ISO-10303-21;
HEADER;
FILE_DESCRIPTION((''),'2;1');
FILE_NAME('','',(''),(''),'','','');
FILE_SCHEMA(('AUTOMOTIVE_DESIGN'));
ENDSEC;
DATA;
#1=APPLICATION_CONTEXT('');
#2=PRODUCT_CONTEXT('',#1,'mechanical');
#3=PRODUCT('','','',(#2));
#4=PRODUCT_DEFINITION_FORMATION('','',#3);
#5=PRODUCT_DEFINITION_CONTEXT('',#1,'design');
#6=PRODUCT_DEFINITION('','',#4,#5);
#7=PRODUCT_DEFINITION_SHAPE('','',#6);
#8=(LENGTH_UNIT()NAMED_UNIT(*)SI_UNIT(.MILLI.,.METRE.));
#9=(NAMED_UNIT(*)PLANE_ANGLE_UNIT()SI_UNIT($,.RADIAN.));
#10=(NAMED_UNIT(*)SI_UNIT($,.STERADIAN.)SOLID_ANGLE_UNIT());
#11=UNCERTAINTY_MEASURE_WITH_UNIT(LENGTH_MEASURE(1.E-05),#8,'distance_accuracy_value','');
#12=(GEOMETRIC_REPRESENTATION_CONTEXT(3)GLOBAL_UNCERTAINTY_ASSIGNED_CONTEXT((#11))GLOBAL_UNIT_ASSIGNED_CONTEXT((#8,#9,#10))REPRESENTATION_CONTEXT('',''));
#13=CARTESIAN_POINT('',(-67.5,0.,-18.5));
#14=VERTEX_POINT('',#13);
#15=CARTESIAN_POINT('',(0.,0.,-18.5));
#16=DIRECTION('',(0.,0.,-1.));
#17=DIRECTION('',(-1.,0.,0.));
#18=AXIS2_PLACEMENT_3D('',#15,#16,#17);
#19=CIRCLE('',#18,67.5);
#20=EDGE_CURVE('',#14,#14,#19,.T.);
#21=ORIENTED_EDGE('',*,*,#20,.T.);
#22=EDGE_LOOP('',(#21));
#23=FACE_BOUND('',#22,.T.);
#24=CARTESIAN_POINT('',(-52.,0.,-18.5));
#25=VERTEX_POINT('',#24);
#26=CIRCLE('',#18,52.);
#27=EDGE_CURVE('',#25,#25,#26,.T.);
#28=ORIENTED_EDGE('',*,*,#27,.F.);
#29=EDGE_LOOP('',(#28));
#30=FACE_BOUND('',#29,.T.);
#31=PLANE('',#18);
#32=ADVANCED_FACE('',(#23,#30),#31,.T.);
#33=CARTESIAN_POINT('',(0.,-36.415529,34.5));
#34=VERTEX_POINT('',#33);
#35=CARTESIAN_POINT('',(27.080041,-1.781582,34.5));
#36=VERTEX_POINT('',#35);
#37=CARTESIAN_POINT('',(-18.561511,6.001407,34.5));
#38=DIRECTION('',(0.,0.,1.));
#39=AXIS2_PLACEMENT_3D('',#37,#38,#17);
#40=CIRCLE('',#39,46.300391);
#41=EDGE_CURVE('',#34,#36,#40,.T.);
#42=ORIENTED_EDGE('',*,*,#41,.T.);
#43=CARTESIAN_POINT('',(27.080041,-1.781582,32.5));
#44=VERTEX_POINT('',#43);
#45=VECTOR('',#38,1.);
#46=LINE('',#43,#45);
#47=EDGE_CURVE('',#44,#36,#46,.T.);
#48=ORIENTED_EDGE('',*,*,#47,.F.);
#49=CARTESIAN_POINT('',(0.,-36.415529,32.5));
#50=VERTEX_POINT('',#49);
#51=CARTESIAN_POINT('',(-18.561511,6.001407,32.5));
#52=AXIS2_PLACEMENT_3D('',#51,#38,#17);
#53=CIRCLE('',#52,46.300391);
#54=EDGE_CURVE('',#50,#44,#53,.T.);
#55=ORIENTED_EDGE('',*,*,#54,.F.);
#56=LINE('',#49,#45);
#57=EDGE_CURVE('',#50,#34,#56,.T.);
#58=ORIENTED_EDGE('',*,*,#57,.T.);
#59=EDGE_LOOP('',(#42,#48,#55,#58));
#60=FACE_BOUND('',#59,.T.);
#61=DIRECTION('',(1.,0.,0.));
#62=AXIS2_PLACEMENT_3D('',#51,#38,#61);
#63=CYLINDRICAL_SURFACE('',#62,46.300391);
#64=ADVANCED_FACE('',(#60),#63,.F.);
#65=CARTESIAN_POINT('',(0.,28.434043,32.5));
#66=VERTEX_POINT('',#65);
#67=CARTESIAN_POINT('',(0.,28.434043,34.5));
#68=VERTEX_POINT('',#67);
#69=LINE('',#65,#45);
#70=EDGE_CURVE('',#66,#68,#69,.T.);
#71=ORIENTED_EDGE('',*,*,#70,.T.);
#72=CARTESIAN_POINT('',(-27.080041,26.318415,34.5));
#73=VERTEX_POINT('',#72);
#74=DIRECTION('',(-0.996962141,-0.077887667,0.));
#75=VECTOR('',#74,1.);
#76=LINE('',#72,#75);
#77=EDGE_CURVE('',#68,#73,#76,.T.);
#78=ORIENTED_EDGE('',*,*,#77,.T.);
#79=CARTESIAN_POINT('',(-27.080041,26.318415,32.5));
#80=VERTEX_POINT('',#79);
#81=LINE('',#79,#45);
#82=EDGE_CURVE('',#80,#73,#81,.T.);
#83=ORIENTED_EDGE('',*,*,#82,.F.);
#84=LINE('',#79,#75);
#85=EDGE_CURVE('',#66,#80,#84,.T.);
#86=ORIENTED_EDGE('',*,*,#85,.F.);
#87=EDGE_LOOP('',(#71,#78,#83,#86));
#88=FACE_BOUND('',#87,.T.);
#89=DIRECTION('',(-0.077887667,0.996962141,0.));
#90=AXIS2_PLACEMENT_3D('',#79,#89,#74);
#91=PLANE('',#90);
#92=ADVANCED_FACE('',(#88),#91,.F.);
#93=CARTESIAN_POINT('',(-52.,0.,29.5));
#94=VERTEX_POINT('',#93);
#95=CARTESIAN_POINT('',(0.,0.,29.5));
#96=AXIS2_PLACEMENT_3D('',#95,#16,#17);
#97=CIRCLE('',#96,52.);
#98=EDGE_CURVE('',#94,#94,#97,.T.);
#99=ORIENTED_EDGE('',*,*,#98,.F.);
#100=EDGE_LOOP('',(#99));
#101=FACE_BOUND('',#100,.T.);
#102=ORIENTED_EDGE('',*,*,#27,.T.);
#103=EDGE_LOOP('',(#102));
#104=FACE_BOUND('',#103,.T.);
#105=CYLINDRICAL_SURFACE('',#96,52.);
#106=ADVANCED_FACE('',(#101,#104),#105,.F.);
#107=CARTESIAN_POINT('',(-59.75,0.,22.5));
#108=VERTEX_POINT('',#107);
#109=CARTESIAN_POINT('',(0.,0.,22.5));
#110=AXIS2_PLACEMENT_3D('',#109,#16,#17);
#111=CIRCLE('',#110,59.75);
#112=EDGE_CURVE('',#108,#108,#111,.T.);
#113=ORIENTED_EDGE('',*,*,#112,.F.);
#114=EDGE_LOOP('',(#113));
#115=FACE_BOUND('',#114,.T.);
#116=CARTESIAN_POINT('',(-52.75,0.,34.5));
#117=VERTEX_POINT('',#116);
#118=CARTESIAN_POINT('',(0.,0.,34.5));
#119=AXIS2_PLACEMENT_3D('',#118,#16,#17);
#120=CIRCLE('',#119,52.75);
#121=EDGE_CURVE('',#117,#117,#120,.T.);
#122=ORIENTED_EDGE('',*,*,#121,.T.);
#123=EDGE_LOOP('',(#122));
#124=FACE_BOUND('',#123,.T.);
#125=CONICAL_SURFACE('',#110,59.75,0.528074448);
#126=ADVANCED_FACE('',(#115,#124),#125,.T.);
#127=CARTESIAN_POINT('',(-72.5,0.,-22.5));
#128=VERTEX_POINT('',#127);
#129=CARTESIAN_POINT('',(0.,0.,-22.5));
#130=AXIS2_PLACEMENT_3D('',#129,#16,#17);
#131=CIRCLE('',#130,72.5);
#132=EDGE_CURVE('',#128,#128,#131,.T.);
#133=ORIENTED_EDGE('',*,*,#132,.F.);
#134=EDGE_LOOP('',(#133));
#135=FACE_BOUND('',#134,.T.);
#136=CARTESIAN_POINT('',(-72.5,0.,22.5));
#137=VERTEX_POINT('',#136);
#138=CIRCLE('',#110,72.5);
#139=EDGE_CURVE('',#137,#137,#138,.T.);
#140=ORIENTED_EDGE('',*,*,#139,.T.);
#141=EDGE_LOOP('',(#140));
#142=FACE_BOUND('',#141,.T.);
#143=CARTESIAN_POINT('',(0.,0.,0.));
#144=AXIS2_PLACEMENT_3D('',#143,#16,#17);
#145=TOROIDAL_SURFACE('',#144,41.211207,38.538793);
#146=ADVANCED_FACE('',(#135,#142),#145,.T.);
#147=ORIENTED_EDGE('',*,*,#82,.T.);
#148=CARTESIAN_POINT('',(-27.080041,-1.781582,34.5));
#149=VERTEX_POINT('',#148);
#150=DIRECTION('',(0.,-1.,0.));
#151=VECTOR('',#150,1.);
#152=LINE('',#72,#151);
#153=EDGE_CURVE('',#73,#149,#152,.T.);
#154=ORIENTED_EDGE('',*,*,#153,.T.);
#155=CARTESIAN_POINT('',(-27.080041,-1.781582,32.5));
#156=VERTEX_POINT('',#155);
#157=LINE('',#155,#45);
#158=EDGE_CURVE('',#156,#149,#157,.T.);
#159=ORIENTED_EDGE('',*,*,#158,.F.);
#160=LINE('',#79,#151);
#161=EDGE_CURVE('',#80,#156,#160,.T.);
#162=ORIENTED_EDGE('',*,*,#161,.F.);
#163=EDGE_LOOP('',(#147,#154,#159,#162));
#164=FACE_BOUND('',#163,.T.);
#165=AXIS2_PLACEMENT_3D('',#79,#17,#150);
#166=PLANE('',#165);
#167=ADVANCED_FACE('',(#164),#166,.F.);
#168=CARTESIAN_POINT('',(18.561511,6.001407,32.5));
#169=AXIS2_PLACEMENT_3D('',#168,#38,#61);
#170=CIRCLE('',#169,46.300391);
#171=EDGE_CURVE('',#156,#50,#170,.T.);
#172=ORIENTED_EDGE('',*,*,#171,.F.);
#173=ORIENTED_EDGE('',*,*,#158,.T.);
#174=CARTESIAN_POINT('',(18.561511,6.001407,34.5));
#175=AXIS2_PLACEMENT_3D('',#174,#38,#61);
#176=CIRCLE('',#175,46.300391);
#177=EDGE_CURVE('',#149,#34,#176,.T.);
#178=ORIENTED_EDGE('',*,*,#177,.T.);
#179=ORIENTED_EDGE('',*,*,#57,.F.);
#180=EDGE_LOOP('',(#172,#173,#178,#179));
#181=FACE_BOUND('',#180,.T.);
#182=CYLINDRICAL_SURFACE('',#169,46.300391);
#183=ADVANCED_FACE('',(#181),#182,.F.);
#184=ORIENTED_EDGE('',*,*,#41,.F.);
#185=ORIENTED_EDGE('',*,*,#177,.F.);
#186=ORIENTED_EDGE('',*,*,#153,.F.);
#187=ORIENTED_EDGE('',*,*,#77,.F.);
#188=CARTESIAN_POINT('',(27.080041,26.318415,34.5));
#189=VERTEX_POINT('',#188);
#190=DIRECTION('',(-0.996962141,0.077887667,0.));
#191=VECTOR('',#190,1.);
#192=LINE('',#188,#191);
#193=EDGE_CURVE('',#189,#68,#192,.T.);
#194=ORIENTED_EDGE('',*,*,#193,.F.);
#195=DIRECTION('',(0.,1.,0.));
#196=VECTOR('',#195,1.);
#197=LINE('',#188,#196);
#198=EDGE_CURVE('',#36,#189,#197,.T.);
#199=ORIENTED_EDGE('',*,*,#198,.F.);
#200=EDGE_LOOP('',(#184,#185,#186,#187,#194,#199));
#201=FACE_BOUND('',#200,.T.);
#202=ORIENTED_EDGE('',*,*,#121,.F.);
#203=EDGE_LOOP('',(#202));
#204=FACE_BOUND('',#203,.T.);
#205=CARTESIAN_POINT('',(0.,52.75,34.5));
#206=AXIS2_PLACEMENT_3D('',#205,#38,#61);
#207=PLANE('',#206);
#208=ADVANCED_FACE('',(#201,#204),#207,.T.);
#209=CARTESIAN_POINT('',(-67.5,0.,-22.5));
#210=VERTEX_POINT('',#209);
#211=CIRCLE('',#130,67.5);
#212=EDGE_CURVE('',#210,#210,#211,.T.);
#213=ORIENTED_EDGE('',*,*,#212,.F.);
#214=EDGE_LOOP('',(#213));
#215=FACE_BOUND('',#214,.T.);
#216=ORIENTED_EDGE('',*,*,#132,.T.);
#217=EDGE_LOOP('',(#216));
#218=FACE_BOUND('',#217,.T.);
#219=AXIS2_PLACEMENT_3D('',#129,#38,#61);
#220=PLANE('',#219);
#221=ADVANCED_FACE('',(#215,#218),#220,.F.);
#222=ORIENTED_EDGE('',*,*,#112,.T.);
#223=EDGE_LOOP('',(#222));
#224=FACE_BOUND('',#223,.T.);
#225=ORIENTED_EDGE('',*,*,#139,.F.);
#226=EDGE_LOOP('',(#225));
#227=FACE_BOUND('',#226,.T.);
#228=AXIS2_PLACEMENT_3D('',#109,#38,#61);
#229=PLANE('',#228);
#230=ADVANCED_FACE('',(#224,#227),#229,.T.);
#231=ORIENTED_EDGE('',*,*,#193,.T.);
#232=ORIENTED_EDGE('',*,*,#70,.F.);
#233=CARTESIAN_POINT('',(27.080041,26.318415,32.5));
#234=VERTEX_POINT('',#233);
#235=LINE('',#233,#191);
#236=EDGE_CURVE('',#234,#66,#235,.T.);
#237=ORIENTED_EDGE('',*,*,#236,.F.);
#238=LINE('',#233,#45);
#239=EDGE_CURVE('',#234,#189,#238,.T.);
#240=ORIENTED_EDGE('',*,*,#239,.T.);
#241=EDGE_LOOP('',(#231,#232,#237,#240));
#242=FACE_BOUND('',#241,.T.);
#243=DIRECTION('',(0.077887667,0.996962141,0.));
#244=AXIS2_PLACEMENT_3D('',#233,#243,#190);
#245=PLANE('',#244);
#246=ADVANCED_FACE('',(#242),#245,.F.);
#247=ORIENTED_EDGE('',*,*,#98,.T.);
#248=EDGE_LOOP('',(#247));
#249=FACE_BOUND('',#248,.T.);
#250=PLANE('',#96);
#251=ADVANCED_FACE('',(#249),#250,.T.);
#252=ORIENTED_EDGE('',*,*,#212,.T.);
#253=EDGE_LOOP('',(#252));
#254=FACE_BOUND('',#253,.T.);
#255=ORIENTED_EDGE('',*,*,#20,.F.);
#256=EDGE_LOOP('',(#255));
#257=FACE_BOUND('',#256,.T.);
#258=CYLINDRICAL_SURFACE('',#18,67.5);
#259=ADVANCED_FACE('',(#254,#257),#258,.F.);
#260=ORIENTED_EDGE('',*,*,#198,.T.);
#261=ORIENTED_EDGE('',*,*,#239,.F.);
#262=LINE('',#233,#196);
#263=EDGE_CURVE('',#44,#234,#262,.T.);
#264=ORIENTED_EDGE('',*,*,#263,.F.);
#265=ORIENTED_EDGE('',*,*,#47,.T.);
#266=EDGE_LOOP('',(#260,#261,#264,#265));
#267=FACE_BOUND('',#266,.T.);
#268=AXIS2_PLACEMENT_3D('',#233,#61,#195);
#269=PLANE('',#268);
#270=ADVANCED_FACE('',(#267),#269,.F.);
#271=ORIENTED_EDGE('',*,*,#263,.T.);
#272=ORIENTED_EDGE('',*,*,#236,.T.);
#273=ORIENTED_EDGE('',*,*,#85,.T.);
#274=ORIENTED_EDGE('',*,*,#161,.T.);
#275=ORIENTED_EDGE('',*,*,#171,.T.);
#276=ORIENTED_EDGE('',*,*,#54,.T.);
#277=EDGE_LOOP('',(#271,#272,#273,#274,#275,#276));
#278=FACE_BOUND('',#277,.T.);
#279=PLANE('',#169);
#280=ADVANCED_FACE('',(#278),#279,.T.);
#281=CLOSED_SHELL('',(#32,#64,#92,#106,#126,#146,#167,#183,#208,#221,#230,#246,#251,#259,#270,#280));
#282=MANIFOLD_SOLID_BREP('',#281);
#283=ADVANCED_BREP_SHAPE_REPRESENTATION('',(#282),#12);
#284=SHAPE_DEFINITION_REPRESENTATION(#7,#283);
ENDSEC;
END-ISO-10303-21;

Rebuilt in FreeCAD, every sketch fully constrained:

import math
import FreeCAD as App
import Part
import Sketcher
from FreeCAD import Vector
Q = App.Units.Quantity

doc = App.newDocument("Part")
params = doc.addObject("Spreadsheet::Sheet", "Params")
for row, (alias, value) in enumerate([
    ("sketch1_diameter", "165 mm"),
    ("pad1_length", "22.5 mm"),
    ("pad1_length2", "22.5 mm"),
    ("sketch2_height", "12 mm"),
    ("sketch2_width", "59.75 mm"),
    ("revolution_angle", "360 deg"),
    ("sketch3_diameter", "135 mm"),
    ("pocket1_length", "4 mm"),
    ("sketch4_diameter", "104 mm"),
    ("pocket2_length", "48 mm"),
    ("groove_angle", "360 deg"),
    ("pocket3_length", "2 mm"),
], start=1):
    params.set(f"A{row}", alias)
    params.set(f"B{row}", "=" + value)
    params.setAlias(f"B{row}", alias)

body = doc.addObject("PartDesign::Body", "Body")

# Sketch on XY plane
sketch1 = doc.addObject("Sketcher::SketchObject", "Sketch")
body.addObject(sketch1)
sketch1.AttachmentSupport = (doc.XY_Plane, [""])
sketch1.MapMode = "FlatFace"
sketch1.addGeometry(Part.Circle(Vector(0, 0, 0), Vector(0, 0, 1), 82.5), False)
sketch1.addConstraint([
    Sketcher.Constraint("Coincident", 0, 3, -1, 1),
    Sketcher.Constraint("Diameter", 0, Q("165 mm")),
])
sketch1.setExpression("Constraints[1]", "Params.sketch1_diameter")
pad1 = doc.addObject("PartDesign::Pad", "Pad")
body.addObject(pad1)
pad1.Profile = sketch1
pad1.Type = "TwoLengths"
pad1.setExpression("Length", "Params.pad1_length")
pad1.setExpression("Length2", "Params.pad1_length2")

# Sketch on YZ plane
sketch2 = doc.addObject("Sketcher::SketchObject", "Sketch001")
body.addObject(sketch2)
sketch2.AttachmentSupport = (doc.YZ_Plane, [""])
sketch2.MapMode = "FlatFace"
sketch2.addGeometry([
    Part.LineSegment(Vector(0, 22.5, 0), Vector(59.75, 22.5, 0)),
    Part.LineSegment(Vector(59.75, 22.5, 0), Vector(52.75, 34.5, 0)),
    Part.LineSegment(Vector(52.75, 34.5, 0), Vector(0, 34.5, 0)),
    Part.LineSegment(Vector(0, 34.5, 0), Vector(0, 22.5, 0)),
], False)
sketch2.addConstraint([
    Sketcher.Constraint("Coincident", 0, 2, 1, 1),
    Sketcher.Constraint("Coincident", 1, 2, 2, 1),
    Sketcher.Constraint("Coincident", 2, 2, 3, 1),
    Sketcher.Constraint("Coincident", 3, 2, 0, 1),
    Sketcher.Constraint("Horizontal", 0),
    Sketcher.Constraint("Horizontal", 2),
    Sketcher.Constraint("Vertical", 3),
    Sketcher.Constraint("PointOnObject", 2, 2, -2),
    Sketcher.Constraint("DistanceY", 3, 2, 3, 1, Q("12 mm")),
    Sketcher.Constraint("DistanceX", 1, 2, 0, 2, Q("7 mm")),
    Sketcher.Constraint("DistanceX", 0, 1, 0, 2, Q("59.75 mm")),
    Sketcher.Constraint("DistanceY", -1, 1, 0, 2, Q("22.5 mm")),
])
sketch2.setExpression("Constraints[8]", "Params.sketch2_height")
sketch2.setExpression("Constraints[10]", "Params.sketch2_width")
revolution = doc.addObject("PartDesign::Revolution", "Revolution")
body.addObject(revolution)
revolution.Profile = sketch2
revolution.ReferenceAxis = (sketch2, ["V_Axis"])
revolution.setExpression("Angle", "Params.revolution_angle")

# Sketch on XY plane
sketch3 = doc.addObject("Sketcher::SketchObject", "Sketch002")
body.addObject(sketch3)
sketch3.AttachmentSupport = (doc.XY_Plane, [""])
sketch3.MapMode = "FlatFace"
sketch3.AttachmentOffset = App.Placement(Vector(0, 0, -22.5), App.Rotation())
sketch3.addGeometry(Part.Circle(Vector(0, 0, 0), Vector(0, 0, 1), 67.5), False)
sketch3.addConstraint([
    Sketcher.Constraint("Coincident", 0, 3, -1, 1),
    Sketcher.Constraint("Diameter", 0, Q("135 mm")),
])
sketch3.setExpression("Constraints[1]", "Params.sketch3_diameter")
pocket1 = doc.addObject("PartDesign::Pocket", "Pocket")
body.addObject(pocket1)
pocket1.Profile = sketch3
pocket1.setExpression("Length", "Params.pocket1_length")
pocket1.Reversed = True

# Sketch on XY plane
sketch4 = doc.addObject("Sketcher::SketchObject", "Sketch003")
body.addObject(sketch4)
sketch4.AttachmentSupport = (doc.XY_Plane, [""])
sketch4.MapMode = "FlatFace"
sketch4.AttachmentOffset = App.Placement(Vector(0, 0, -18.5), App.Rotation())
sketch4.addGeometry(Part.Circle(Vector(0, 0, 0), Vector(0, 0, 1), 52), False)
sketch4.addConstraint([
    Sketcher.Constraint("Coincident", 0, 3, -1, 1),
    Sketcher.Constraint("Diameter", 0, Q("104 mm")),
])
sketch4.setExpression("Constraints[1]", "Params.sketch4_diameter")
pocket2 = doc.addObject("PartDesign::Pocket", "Pocket001")
body.addObject(pocket2)
pocket2.Profile = sketch4
pocket2.setExpression("Length", "Params.pocket2_length")
pocket2.Reversed = True

# Sketch on YZ plane
sketch5 = doc.addObject("Sketcher::SketchObject", "Sketch004")
body.addObject(sketch5)
sketch5.AttachmentSupport = (doc.YZ_Plane, [""])
sketch5.MapMode = "FlatFace"
sketch5.addGeometry([
    Part.LineSegment(Vector(72.5, 31.948658, 0), Vector(72.5, 22.5, 0)),  # 0
    Part.ArcOfCircle(Part.Circle(Vector(41.211207, 0, 0), Vector(0, 0, 1), 38.538793), math.radians(-35.720188), math.radians(35.720188)),  # 1
    Part.LineSegment(Vector(72.5, -22.5, 0), Vector(72.5, -33.489916, 0)),  # 2
    Part.LineSegment(Vector(72.5, -33.489916, 0), Vector(102.607455, -33.489916, 0)),  # 3
    Part.LineSegment(Vector(102.607455, -33.489916, 0), Vector(102.607455, 31.948658, 0)),  # 4
    Part.LineSegment(Vector(102.607455, 31.948658, 0), Vector(72.5, 31.948658, 0)),  # 5
], False)
sketch5.addConstraint([
    Sketcher.Constraint("Coincident", 0, 2, 1, 2),
    Sketcher.Constraint("Coincident", 1, 1, 2, 1),
    Sketcher.Constraint("Coincident", 2, 2, 3, 1),
    Sketcher.Constraint("Coincident", 3, 2, 4, 1),
    Sketcher.Constraint("Coincident", 4, 2, 5, 1),
    Sketcher.Constraint("Coincident", 5, 2, 0, 1),
    Sketcher.Constraint("Vertical", 0),
    Sketcher.Constraint("Vertical", 2),
    Sketcher.Constraint("Horizontal", 3),
    Sketcher.Constraint("Vertical", 4),
    Sketcher.Constraint("Horizontal", 5),
    Sketcher.Constraint("Symmetric", 0, 2, 1, 1, -1),
    Sketcher.Constraint("DistanceY", 1, 1, 0, 2, Q("45 mm")),
    Sketcher.Constraint("DistanceX", -1, 1, 0, 2, Q("72.5 mm")),
    Sketcher.Constraint("Radius", 1, Q("38.538793 mm")),
    Sketcher.Constraint("DistanceY", 0, 2, 0, 1, Q("9.448658 mm")),
    Sketcher.Constraint("DistanceX", 3, 1, 3, 2, Q("30.107455 mm")),
    Sketcher.Constraint("DistanceY", 2, 2, 2, 1, Q("10.989916 mm")),
])
groove = doc.addObject("PartDesign::Groove", "Groove")
body.addObject(groove)
groove.Profile = sketch5
groove.ReferenceAxis = (sketch5, ["V_Axis"])
groove.setExpression("Angle", "Params.groove_angle")

# Sketch on XY plane
sketch6 = doc.addObject("Sketcher::SketchObject", "Sketch005")
body.addObject(sketch6)
sketch6.AttachmentSupport = (doc.XY_Plane, [""])
sketch6.MapMode = "FlatFace"
sketch6.AttachmentOffset = App.Placement(Vector(0, 0, 34.5), App.Rotation())
sketch6.addGeometry([
    Part.LineSegment(Vector(0, 28.434043, 0), Vector(-27.080041, 26.318415, 0)),  # 0
    Part.LineSegment(Vector(-27.080041, 26.318415, 0), Vector(-27.080041, -1.781582, 0)),  # 1
    Part.ArcOfCircle(Part.Circle(Vector(18.561511, 6.001407, 0), Vector(0, 0, 1), 46.300391), math.radians(-170.322766), math.radians(-113.634027)),  # 2
    Part.ArcOfCircle(Part.Circle(Vector(-18.561511, 6.001407, 0), Vector(0, 0, 1), 46.300391), math.radians(-66.365973), math.radians(-9.677234)),  # 3
    Part.LineSegment(Vector(27.080041, -1.781582, 0), Vector(27.080041, 26.318415, 0)),  # 4
    Part.LineSegment(Vector(27.080041, 26.318415, 0), Vector(0, 28.434043, 0)),  # 5
], False)
sketch6.addConstraint([
    Sketcher.Constraint("Coincident", 0, 2, 1, 1),
    Sketcher.Constraint("Coincident", 1, 2, 2, 1),
    Sketcher.Constraint("Coincident", 2, 2, 3, 1),
    Sketcher.Constraint("Coincident", 3, 2, 4, 1),
    Sketcher.Constraint("Coincident", 4, 2, 5, 1),
    Sketcher.Constraint("Coincident", 5, 2, 0, 1),
    Sketcher.Constraint("Vertical", 1),
    Sketcher.Constraint("Vertical", 4),
    Sketcher.Constraint("Equal", 2, 3),
    Sketcher.Constraint("Symmetric", 2, 3, 3, 3, -2),
    Sketcher.Constraint("Symmetric", 0, 2, 4, 2, -2),
    Sketcher.Constraint("PointOnObject", 5, 2, -2),
    Sketcher.Constraint("Radius", 2, Q("46.300391 mm")),
    Sketcher.Constraint("DistanceY", 1, 2, 1, 1, Q("28.099997 mm")),
    Sketcher.Constraint("DistanceX", -1, 1, 2, 3, Q("18.561511 mm")),
    Sketcher.Constraint("DistanceX", 0, 2, -1, 1, Q("27.080041 mm")),
    Sketcher.Constraint("DistanceY", 1, 2, -1, 1, Q("1.781582 mm")),
    Sketcher.Constraint("DistanceY", 0, 2, 5, 2, Q("2.115628 mm")),
])
pocket3 = doc.addObject("PartDesign::Pocket", "Pocket002")
body.addObject(pocket3)
pocket3.Profile = sketch6
pocket3.setExpression("Length", "Params.pocket3_length")

doc.recompute()
